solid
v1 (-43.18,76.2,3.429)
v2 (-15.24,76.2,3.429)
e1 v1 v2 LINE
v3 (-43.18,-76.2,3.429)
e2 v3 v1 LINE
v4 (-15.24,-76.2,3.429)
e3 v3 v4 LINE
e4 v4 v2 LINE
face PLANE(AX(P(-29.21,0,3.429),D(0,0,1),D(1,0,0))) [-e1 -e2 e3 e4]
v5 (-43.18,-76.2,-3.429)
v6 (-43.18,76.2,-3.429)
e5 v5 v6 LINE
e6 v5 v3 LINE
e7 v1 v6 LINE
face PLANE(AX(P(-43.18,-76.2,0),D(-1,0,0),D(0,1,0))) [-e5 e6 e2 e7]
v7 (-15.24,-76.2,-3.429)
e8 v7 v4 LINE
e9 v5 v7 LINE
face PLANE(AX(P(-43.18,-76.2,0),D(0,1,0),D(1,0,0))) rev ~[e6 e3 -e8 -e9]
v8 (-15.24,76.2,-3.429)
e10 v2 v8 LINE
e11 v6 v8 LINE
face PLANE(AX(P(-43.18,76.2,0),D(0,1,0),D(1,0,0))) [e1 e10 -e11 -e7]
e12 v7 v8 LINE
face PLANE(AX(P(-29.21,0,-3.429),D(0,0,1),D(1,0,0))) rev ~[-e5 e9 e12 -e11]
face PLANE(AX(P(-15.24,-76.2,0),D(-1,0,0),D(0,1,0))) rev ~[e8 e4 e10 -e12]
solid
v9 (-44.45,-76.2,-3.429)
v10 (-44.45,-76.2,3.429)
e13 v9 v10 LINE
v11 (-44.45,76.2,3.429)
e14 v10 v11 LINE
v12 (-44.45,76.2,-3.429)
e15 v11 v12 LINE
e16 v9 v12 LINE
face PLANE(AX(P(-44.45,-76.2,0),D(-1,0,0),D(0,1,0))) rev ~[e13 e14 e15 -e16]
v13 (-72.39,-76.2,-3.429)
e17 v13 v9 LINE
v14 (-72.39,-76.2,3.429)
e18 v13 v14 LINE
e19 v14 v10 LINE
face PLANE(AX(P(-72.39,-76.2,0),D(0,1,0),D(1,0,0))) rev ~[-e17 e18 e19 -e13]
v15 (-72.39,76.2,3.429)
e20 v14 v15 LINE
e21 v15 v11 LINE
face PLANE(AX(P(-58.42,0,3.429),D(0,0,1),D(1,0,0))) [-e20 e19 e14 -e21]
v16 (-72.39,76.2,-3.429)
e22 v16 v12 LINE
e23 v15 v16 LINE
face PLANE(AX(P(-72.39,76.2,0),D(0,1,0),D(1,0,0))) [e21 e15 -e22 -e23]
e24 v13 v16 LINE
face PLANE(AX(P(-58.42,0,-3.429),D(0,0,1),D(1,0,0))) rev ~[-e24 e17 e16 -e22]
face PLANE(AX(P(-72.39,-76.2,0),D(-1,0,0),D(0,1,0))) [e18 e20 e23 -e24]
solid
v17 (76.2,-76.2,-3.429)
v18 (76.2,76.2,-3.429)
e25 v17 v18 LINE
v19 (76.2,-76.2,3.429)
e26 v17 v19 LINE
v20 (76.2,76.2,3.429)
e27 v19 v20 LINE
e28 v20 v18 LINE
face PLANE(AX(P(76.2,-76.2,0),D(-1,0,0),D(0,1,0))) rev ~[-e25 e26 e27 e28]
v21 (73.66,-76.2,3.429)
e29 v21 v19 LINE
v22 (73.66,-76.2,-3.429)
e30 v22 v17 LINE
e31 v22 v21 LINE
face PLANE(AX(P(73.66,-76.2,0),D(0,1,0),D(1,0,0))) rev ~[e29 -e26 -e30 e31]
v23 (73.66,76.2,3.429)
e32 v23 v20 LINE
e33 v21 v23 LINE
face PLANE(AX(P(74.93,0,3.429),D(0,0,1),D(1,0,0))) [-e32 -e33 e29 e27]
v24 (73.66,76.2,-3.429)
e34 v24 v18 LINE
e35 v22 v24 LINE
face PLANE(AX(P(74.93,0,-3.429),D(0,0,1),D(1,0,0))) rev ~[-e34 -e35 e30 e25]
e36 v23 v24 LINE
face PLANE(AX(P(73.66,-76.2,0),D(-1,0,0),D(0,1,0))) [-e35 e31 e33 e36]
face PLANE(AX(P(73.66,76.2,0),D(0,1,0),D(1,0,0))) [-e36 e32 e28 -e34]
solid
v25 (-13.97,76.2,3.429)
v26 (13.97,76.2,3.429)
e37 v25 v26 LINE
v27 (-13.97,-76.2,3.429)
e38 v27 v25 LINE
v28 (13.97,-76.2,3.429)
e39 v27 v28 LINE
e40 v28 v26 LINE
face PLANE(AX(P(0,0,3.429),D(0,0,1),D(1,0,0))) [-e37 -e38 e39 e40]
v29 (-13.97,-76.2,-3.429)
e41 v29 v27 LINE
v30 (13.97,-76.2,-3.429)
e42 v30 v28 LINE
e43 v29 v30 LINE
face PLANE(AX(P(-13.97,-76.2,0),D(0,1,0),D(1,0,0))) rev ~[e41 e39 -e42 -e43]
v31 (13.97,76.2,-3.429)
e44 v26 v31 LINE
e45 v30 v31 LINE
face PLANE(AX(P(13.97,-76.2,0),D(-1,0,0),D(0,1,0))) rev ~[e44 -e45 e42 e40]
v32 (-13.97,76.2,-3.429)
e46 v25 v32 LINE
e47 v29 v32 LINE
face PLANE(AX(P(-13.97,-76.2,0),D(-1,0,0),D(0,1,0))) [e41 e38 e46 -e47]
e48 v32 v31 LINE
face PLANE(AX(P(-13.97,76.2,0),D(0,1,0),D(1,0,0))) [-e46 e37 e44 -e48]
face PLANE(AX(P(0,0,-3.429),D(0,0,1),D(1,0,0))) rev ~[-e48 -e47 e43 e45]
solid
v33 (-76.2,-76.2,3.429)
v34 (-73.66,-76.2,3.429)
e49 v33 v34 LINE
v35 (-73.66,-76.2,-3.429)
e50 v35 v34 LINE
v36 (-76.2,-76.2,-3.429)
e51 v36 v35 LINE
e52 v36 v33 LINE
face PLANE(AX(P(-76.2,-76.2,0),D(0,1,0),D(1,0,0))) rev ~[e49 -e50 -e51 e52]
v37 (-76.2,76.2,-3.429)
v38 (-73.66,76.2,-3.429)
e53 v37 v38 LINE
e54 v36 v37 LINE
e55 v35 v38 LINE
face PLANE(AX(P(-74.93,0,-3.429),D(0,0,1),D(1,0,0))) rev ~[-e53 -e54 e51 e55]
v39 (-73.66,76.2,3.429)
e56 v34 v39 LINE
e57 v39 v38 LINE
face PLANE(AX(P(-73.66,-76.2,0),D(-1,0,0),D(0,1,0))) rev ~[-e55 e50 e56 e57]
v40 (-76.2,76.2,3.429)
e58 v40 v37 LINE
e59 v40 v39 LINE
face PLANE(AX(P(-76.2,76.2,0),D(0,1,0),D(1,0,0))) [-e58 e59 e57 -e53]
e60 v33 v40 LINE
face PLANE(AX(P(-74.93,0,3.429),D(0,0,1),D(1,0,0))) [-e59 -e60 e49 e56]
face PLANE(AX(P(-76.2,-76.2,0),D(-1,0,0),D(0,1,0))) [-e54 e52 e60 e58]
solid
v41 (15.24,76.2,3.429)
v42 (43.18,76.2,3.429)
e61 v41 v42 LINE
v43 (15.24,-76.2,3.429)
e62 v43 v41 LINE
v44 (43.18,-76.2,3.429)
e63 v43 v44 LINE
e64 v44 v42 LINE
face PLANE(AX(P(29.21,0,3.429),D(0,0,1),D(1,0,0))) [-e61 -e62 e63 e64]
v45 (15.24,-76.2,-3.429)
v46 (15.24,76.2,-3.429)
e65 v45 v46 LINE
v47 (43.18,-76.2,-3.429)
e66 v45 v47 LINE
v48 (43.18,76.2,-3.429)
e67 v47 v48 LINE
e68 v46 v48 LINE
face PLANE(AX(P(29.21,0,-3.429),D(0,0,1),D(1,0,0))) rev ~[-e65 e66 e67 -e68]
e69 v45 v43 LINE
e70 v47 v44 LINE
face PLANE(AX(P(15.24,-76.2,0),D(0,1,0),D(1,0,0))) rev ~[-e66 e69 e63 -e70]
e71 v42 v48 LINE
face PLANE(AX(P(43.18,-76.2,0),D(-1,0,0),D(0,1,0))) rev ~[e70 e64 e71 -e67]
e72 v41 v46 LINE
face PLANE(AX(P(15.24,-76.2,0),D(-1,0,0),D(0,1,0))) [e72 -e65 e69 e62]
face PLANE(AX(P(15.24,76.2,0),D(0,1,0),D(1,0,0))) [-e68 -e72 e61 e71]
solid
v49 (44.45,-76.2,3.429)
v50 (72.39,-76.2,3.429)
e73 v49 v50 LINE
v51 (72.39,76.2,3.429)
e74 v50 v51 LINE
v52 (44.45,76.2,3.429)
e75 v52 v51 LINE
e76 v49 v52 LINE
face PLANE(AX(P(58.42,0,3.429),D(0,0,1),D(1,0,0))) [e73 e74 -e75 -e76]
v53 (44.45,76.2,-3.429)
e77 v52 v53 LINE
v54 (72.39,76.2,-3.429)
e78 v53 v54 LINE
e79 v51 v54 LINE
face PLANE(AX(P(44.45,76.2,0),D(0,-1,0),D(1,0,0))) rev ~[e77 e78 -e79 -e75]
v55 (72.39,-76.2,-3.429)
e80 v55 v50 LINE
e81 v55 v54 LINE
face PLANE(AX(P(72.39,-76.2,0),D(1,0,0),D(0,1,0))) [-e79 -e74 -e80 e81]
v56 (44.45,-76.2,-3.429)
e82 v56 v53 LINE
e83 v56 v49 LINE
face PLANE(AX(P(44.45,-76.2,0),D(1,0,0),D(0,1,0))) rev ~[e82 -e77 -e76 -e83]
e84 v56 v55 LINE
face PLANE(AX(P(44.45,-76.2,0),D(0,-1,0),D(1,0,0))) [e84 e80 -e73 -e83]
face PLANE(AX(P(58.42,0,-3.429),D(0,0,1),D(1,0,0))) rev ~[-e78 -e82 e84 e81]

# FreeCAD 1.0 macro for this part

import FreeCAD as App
import Part
import Sketcher

V = App.Vector
Q = App.Units.Quantity


def add_polygon(sketch, points):
    """Adds a closed chain of lines whose ends are joined by coincident constraints."""
    first, n = sketch.GeometryCount, len(points)
    for a, b in zip(points, points[1:] + points[:1]):
        sketch.addGeometry(Part.LineSegment(App.Vector(*a, 0), App.Vector(*b, 0)), False)
    for i in range(n):
        sketch.addConstraint(Sketcher.Constraint("Coincident", first + i, 2, first + (i + 1) % n, 1))

doc = App.newDocument("Part")
body = doc.addObject("PartDesign::Body", "Body")
body.AllowCompound = True

# Sketch on XY plane
sketch1 = body.newObject("Sketcher::SketchObject", "Sketch")
sketch1.AttachmentSupport = (doc.getObject("XY_Plane"), [""])
sketch1.MapMode = "FlatFace"
add_polygon(sketch1, [(73.7, 76.2), (73.7, -76.2), (76.2, -76.2), (76.2, 76.2)])  # lines 0-3
add_polygon(sketch1, [(-76.2, 76.2), (-76.2, -76.2), (-73.7, -76.2), (-73.7, 76.2)])  # lines 4-7
add_polygon(sketch1, [(-14, 76.2), (-14, -76.2), (14, -76.2), (14, 76.2)])  # lines 8-11
add_polygon(sketch1, [(-43.2, 76.2), (-43.2, -76.2), (-15.2, -76.2), (-15.2, 76.2)])  # lines 12-15
add_polygon(sketch1, [(15.2, 76.2), (15.2, -76.2), (43.2, -76.2), (43.2, 76.2)])  # lines 16-19
add_polygon(sketch1, [(-72.4, 76.2), (-72.4, -76.2), (-44.5, -76.2), (-44.5, 76.2)])  # lines 20-23
add_polygon(sketch1, [(44.5, 76.2), (44.5, -76.2), (72.4, -76.2), (72.4, 76.2)])  # lines 24-27
sketch1.addConstraint([
    Sketcher.Constraint("Vertical", 0),
    Sketcher.Constraint("Horizontal", 1),
    Sketcher.Constraint("Vertical", 2),
    Sketcher.Constraint("Horizontal", 3),
    Sketcher.Constraint("Vertical", 4),
    Sketcher.Constraint("Horizontal", 5),
    Sketcher.Constraint("Vertical", 6),
    Sketcher.Constraint("Horizontal", 7),
    Sketcher.Constraint("Vertical", 8),
    Sketcher.Constraint("Horizontal", 9),
    Sketcher.Constraint("Vertical", 10),
    Sketcher.Constraint("Horizontal", 11),
    Sketcher.Constraint("Vertical", 12),
    Sketcher.Constraint("Horizontal", 13),
    Sketcher.Constraint("Vertical", 14),
    Sketcher.Constraint("Horizontal", 15),
    Sketcher.Constraint("Vertical", 16),
    Sketcher.Constraint("Horizontal", 17),
    Sketcher.Constraint("Vertical", 18),
    Sketcher.Constraint("Horizontal", 19),
    Sketcher.Constraint("Vertical", 20),
    Sketcher.Constraint("Horizontal", 21),
    Sketcher.Constraint("Vertical", 22),
    Sketcher.Constraint("Horizontal", 23),
    Sketcher.Constraint("Vertical", 24),
    Sketcher.Constraint("Horizontal", 25),
    Sketcher.Constraint("Vertical", 26),
    Sketcher.Constraint("Horizontal", 27),
    Sketcher.Constraint("Symmetric", 2, 2, 4, 2, -1, 1),
    Sketcher.Constraint("Symmetric", 0, 2, 6, 2, -1, 1),
    Sketcher.Constraint("Symmetric", 8, 2, 10, 2, -1, 1),
    Sketcher.Constraint("Symmetric", 14, 2, 16, 2, -1, 1),
    Sketcher.Constraint("Symmetric", 12, 2, 18, 2, -1, 1),
    Sketcher.Constraint("Symmetric", 22, 2, 24, 2, -1, 1),
    Sketcher.Constraint("Symmetric", 20, 2, 26, 2, -1, 1),
    Sketcher.Constraint("Horizontal", 1, 2, 4, 2),
    Sketcher.Constraint("Horizontal", 5, 2, 8, 2),
    Sketcher.Constraint("Horizontal", 9, 2, 12, 2),
    Sketcher.Constraint("Horizontal", 11, 2, 14, 2),
    Sketcher.Constraint("Horizontal", 17, 2, 20, 2),
    Sketcher.Constraint("Horizontal", 19, 2, 22, 2),
    Sketcher.Constraint("Equal", 11, 13),
    Sketcher.Constraint("Equal", 19, 21),
    Sketcher.Constraint("DistanceY", 0, 2, 0, 1, Q("6 in")),
    Sketcher.Constraint("DistanceX", 1, 1, 1, 2, Q("0.1 in")),
    Sketcher.Constraint("DistanceX", 9, 1, 9, 2, Q("1.1 in")),
    Sketcher.Constraint("DistanceX", -1, 1, 1, 2, Q("3 in")),
    Sketcher.Constraint("DistanceX", 12, 2, -1, 1, Q("1.7 in")),
    Sketcher.Constraint("DistanceX", 20, 2, 8, 2, Q("2.3 in")),
])
pad1 = body.newObject("PartDesign::Pad", "Pad")
pad1.Profile = sketch1
pad1.Length = Q("0.27 in")
pad1.Midplane = True

doc.recompute()
